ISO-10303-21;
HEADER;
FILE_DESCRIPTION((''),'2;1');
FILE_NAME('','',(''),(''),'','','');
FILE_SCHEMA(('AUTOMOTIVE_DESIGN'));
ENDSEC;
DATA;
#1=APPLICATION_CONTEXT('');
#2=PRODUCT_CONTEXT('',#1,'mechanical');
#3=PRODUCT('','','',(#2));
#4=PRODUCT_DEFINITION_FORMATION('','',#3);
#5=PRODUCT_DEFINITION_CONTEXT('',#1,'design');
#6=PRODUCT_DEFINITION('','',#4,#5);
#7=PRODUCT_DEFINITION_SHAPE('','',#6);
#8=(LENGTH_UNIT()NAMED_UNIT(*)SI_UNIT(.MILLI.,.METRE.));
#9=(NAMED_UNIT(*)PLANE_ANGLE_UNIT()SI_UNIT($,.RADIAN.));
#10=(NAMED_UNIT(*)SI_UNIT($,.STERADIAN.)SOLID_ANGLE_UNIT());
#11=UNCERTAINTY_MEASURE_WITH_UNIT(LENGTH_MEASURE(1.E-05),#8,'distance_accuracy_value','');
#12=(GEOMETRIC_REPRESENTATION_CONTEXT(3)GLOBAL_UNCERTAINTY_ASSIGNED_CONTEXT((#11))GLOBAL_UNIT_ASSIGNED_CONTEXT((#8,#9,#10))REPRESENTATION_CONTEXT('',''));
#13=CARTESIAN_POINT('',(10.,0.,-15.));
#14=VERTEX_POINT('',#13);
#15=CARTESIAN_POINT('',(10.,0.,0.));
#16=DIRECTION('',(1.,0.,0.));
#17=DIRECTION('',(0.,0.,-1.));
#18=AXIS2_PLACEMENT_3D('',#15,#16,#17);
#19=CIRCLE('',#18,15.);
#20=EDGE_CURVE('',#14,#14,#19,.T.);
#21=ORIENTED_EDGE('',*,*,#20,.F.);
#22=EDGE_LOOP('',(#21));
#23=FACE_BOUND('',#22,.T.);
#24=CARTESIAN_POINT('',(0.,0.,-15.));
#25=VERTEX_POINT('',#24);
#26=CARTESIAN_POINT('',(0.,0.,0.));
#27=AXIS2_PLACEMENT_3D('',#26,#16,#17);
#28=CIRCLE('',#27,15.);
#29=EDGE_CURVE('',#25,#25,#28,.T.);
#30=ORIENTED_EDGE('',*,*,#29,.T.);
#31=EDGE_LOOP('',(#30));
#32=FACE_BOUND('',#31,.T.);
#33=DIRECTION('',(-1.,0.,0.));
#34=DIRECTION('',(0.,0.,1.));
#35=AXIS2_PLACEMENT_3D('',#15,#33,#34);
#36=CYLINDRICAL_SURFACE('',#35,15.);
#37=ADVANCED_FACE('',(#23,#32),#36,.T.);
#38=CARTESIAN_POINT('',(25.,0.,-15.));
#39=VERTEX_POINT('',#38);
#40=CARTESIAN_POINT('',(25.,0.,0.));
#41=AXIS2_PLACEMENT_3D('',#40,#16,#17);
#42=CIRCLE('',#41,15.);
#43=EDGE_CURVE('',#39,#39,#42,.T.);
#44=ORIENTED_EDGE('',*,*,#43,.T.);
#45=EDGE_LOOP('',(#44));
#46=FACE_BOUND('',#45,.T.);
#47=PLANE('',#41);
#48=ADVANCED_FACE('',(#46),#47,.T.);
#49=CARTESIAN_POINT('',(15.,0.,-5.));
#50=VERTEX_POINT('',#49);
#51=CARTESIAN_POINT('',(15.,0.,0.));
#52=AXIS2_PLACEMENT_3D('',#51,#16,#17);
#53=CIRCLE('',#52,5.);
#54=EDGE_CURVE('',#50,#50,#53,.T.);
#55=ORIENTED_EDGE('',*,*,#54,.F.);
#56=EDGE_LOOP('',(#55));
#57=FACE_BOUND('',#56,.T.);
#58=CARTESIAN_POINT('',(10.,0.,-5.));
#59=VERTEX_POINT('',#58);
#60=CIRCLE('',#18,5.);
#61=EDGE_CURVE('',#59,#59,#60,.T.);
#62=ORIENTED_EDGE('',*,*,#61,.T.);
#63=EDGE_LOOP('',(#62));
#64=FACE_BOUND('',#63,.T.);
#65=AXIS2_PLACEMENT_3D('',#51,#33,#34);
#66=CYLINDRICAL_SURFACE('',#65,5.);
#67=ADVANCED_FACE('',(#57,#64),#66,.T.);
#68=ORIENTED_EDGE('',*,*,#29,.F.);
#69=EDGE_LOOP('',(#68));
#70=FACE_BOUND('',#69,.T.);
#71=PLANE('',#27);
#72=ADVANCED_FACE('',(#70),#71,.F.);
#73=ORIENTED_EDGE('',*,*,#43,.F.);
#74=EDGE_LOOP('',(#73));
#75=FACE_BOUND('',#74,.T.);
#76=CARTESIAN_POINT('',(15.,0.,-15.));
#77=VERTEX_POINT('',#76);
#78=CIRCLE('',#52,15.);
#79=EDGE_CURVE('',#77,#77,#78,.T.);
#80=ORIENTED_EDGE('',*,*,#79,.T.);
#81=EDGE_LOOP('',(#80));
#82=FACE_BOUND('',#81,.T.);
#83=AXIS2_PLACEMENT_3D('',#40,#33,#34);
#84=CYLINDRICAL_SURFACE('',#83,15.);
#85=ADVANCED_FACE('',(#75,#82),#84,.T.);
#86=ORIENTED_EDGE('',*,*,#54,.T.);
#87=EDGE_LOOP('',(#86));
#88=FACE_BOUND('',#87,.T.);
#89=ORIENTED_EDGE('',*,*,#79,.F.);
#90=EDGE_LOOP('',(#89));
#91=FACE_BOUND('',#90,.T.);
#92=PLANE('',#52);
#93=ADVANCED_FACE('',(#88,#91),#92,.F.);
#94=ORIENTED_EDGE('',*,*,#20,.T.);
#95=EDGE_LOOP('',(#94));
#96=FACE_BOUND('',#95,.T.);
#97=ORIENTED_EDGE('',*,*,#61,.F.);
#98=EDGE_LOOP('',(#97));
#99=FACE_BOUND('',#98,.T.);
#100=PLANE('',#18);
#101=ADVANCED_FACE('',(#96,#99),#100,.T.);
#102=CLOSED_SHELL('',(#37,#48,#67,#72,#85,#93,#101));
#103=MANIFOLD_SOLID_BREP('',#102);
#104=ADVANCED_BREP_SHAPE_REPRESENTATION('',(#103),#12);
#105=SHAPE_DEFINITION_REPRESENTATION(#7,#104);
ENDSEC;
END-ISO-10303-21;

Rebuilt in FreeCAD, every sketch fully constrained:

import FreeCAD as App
import Part
import Sketcher

V = App.Vector

doc = App.newDocument("Part")
body = doc.addObject("PartDesign::Body", "Body")

# Sketch on YZ plane
sketch1 = doc.addObject("Sketcher::SketchObject", "Sketch")
body.addObject(sketch1)
sketch1.AttachmentSupport = (doc.YZ_Plane, [""])
sketch1.MapMode = "FlatFace"
sketch1.addGeometry(Part.Circle(V(0, 0, 0), V(0, 0, 1), 15), False)
sketch1.addConstraint([
    Sketcher.Constraint("Coincident", 0, 3, -1, 1),
    Sketcher.Constraint("Diameter", 0, 30.0),
])
pad1 = doc.addObject("PartDesign::Pad", "Pad")
body.addObject(pad1)
pad1.Profile = sketch1
pad1.Length = 10

# Sketch on YZ plane
sketch2 = doc.addObject("Sketcher::SketchObject", "Sketch001")
body.addObject(sketch2)
sketch2.AttachmentSupport = (doc.YZ_Plane, [""])
sketch2.MapMode = "FlatFace"
sketch2.AttachmentOffset = App.Placement(V(0, 0, 10), App.Rotation())
sketch2.addGeometry(Part.Circle(V(0, 0, 0), V(0, 0, 1), 5), False)
sketch2.addConstraint([
    Sketcher.Constraint("Coincident", 0, 3, -1, 1),
    Sketcher.Constraint("Diameter", 0, 10.0),
])
pad2 = doc.addObject("PartDesign::Pad", "Pad001")
body.addObject(pad2)
pad2.Profile = sketch2
pad2.Length = 5

# Sketch on YZ plane
sketch3 = doc.addObject("Sketcher::SketchObject", "Sketch002")
body.addObject(sketch3)
sketch3.AttachmentSupport = (doc.YZ_Plane, [""])
sketch3.MapMode = "FlatFace"
sketch3.AttachmentOffset = App.Placement(V(0, 0, 15), App.Rotation())
sketch3.addGeometry(Part.Circle(V(0, 0, 0), V(0, 0, 1), 15), False)
sketch3.addConstraint([
    Sketcher.Constraint("Coincident", 0, 3, -1, 1),
    Sketcher.Constraint("Diameter", 0, 30.0),
])
pad3 = doc.addObject("PartDesign::Pad", "Pad002")
body.addObject(pad3)
pad3.Profile = sketch3
pad3.Length = 10

doc.recompute()
